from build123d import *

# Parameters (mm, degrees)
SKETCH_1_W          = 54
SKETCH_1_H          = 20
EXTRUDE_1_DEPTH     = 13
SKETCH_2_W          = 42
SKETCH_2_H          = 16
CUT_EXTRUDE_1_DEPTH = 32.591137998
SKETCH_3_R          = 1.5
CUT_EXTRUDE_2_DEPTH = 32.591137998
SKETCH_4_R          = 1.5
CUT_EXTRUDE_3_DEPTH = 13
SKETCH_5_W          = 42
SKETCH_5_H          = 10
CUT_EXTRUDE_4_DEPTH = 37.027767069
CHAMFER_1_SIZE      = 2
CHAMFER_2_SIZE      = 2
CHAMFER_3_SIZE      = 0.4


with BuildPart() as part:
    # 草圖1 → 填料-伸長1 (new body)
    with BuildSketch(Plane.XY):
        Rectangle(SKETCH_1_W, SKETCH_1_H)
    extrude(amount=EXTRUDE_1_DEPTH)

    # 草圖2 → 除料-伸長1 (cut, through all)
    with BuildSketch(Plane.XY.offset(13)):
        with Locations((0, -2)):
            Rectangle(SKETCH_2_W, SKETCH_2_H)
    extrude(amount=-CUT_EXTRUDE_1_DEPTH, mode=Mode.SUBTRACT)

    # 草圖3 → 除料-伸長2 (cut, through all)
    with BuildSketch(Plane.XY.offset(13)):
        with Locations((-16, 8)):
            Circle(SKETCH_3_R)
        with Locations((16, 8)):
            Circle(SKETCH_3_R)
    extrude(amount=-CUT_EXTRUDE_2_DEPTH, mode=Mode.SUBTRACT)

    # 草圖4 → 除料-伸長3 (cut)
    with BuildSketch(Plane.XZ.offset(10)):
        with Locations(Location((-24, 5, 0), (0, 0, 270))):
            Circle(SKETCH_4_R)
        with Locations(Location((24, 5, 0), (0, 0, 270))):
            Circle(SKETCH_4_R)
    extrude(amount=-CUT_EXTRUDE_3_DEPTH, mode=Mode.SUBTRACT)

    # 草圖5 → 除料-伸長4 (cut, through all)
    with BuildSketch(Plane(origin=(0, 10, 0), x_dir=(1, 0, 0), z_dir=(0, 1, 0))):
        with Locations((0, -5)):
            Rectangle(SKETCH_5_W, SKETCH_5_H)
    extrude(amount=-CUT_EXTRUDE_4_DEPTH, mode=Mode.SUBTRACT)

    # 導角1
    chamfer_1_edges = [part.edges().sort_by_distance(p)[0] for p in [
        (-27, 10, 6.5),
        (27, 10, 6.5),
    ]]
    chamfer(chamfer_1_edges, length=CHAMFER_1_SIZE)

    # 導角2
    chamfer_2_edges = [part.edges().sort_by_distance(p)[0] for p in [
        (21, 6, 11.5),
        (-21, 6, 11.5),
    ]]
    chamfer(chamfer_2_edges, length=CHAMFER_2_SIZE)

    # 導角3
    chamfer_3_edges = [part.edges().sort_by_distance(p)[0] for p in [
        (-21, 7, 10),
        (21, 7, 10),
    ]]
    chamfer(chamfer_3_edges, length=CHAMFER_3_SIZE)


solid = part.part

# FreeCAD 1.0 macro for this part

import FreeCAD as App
import Part
import Sketcher

V = App.Vector


def edges_at(feature, points):
    """Names of the edges that pass closest to the given points."""
    edges = feature.Shape.Edges
    near = lambda p: min(range(len(edges)), key=lambda i: edges[i].distToShape(Part.Vertex(*p))[0])
    return sorted({f"Edge{near(p) + 1}" for p in points})


def add_polygon(sketch, points):
    """Adds a closed chain of lines whose ends are joined by coincident constraints."""
    first, n = sketch.GeometryCount, len(points)
    for a, b in zip(points, points[1:] + points[:1]):
        sketch.addGeometry(Part.LineSegment(App.Vector(*a, 0), App.Vector(*b, 0)), False)
    for i in range(n):
        sketch.addConstraint(Sketcher.Constraint("Coincident", first + i, 2, first + (i + 1) % n, 1))

doc = App.newDocument("Part")
params = doc.addObject("Spreadsheet::Sheet", "Params")
for row, (alias, value) in enumerate([
    ("sketch1_width", "54 mm"),
    ("sketch1_height", "20 mm"),
    ("pad1_length", "13 mm"),
    ("sketch2_width", "42 mm"),
    ("sketch2_height", "16 mm"),
    ("sketch3_diameter", "3 mm"),
    ("sketch4_diameter", "3 mm"),
    ("pocket3_length", "13 mm"),
    ("sketch5_width", "42 mm"),
    ("sketch5_height", "10 mm"),
    ("chamfer_size", "2 mm"),
    ("chamfer2_size", "2 mm"),
    ("chamfer3_size", "0.4 mm"),
], start=1):
    params.set(f"A{row}", alias)
    params.set(f"B{row}", "=" + value)
    params.setAlias(f"B{row}", alias)

body = doc.addObject("PartDesign::Body", "Body")

# Sketch on XY plane
sketch1 = doc.addObject("Sketcher::SketchObject", "Sketch")
body.addObject(sketch1)
sketch1.AttachmentSupport = (doc.XY_Plane, [""])
sketch1.MapMode = "FlatFace"
add_polygon(sketch1, [(-27, 10), (-27, -10), (27, -10), (27, 10)])  # lines 0-3
sketch1.addConstraint([
    Sketcher.Constraint("Vertical", 0),
    Sketcher.Constraint("Horizontal", 1),
    Sketcher.Constraint("Vertical", 2),
    Sketcher.Constraint("Horizontal", 3),
    Sketcher.Constraint("Symmetric", 0, 2, 2, 2, -1, 1),
    Sketcher.Constraint("DistanceX", 1, 1, 1, 2, 54.0),
    Sketcher.Constraint("DistanceY", 0, 2, 0, 1, 20.0),
])
sketch1.setExpression("Constraints[9]", "Params.sketch1_width")
sketch1.setExpression("Constraints[10]", "Params.sketch1_height")
pad1 = doc.addObject("PartDesign::Pad", "Pad")
body.addObject(pad1)
pad1.Profile = sketch1
pad1.setExpression("Length", "Params.pad1_length")

# Sketch on XY plane
sketch2 = doc.addObject("Sketcher::SketchObject", "Sketch001")
body.addObject(sketch2)
sketch2.AttachmentSupport = (doc.XY_Plane, [""])
sketch2.MapMode = "FlatFace"
sketch2.AttachmentOffset = App.Placement(V(0, 0, 13), App.Rotation())
add_polygon(sketch2, [(-21, 6), (-21, -10), (21, -10), (21, 6)])  # lines 0-3
sketch2.addConstraint([
    Sketcher.Constraint("Vertical", 0),
    Sketcher.Constraint("Horizontal", 1),
    Sketcher.Constraint("Vertical", 2),
    Sketcher.Constraint("Horizontal", 3),
    Sketcher.Constraint("DistanceX", 1, 1, 1, 2, 42.0),
    Sketcher.Constraint("DistanceY", 0, 2, 0, 1, 16.0),
    Sketcher.Constraint("DistanceX", 0, 2, -1, 1, 21.0),
    Sketcher.Constraint("DistanceY", 0, 2, -1, 1, 10.0),
])
sketch2.setExpression("Constraints[8]", "Params.sketch2_width")
sketch2.setExpression("Constraints[9]", "Params.sketch2_height")
pocket1 = doc.addObject("PartDesign::Pocket", "Pocket")
body.addObject(pocket1)
pocket1.Profile = sketch2
pocket1.Type = "ThroughAll"

# Sketch on XY plane
sketch3 = doc.addObject("Sketcher::SketchObject", "Sketch002")
body.addObject(sketch3)
sketch3.AttachmentSupport = (doc.XY_Plane, [""])
sketch3.MapMode = "FlatFace"
sketch3.AttachmentOffset = App.Placement(V(0, 0, 13), App.Rotation())
sketch3.addGeometry([
    Part.Circle(V(-16, 8, 0), V(0, 0, 1), 1.5),
    Part.Circle(V(16, 8, 0), V(0, 0, 1), 1.5),
], False)
sketch3.addConstraint([
    Sketcher.Constraint("Equal", 0, 1),
    Sketcher.Constraint("Symmetric", 0, 3, 1, 3, -2),
    Sketcher.Constraint("Diameter", 0, 3.0),
    Sketcher.Constraint("DistanceX", 0, 3, -1, 1, 16.0),
    Sketcher.Constraint("DistanceY", -1, 1, 0, 3, 8.0),
])
sketch3.setExpression("Constraints[2]", "Params.sketch3_diameter")
pocket2 = doc.addObject("PartDesign::Pocket", "Pocket001")
body.addObject(pocket2)
pocket2.Profile = sketch3
pocket2.Type = "ThroughAll"

# Sketch on XZ plane
sketch4 = doc.addObject("Sketcher::SketchObject", "Sketch003")
body.addObject(sketch4)
sketch4.AttachmentSupport = (doc.XZ_Plane, [""])
sketch4.MapMode = "FlatFace"
sketch4.AttachmentOffset = App.Placement(V(0, 0, 10), App.Rotation())
sketch4.addGeometry([
    Part.Circle(V(-24, 5, 0), V(0, 0, 1), 1.5),
    Part.Circle(V(24, 5, 0), V(0, 0, 1), 1.5),
], False)
sketch4.addConstraint([
    Sketcher.Constraint("Equal", 0, 1),
    Sketcher.Constraint("Symmetric", 0, 3, 1, 3, -2),
    Sketcher.Constraint("Diameter", 0, 3.0),
    Sketcher.Constraint("DistanceX", 0, 3, -1, 1, 24.0),
    Sketcher.Constraint("DistanceY", -1, 1, 0, 3, 5.0),
])
sketch4.setExpression("Constraints[2]", "Params.sketch4_diameter")
pocket3 = doc.addObject("PartDesign::Pocket", "Pocket002")
body.addObject(pocket3)
pocket3.Profile = sketch4
pocket3.setExpression("Length", "Params.pocket3_length")

# Sketch on XZ plane
sketch5 = doc.addObject("Sketcher::SketchObject", "Sketch004")
body.addObject(sketch5)
sketch5.AttachmentSupport = (doc.XZ_Plane, [""])
sketch5.MapMode = "FlatFace"
sketch5.AttachmentOffset = App.Placement(V(0, 0, -10), App.Rotation())
add_polygon(sketch5, [(-21, 0), (-21, 10), (21, 10), (21, 0)])  # lines 0-3
sketch5.addConstraint([
    Sketcher.Constraint("Vertical", 0),
    Sketcher.Constraint("Horizontal", 1),
    Sketcher.Constraint("Vertical", 2),
    Sketcher.Constraint("Horizontal", 3),
    Sketcher.Constraint("Symmetric", 2, 2, 3, 2, -1, 1),
    Sketcher.Constraint("DistanceX", 1, 1, 1, 2, 42.0),
    Sketcher.Constraint("DistanceY", 0, 1, 0, 2, 10.0),
])
sketch5.setExpression("Constraints[9]", "Params.sketch5_width")
sketch5.setExpression("Constraints[10]", "Params.sketch5_height")
pocket4 = doc.addObject("PartDesign::Pocket", "Pocket003")
body.addObject(pocket4)
pocket4.Profile = sketch5
pocket4.Type = "ThroughAll"
pocket4.Reversed = True
doc.recompute()

chamfer = doc.addObject("PartDesign::Chamfer", "Chamfer")
body.addObject(chamfer)
chamfer.Base = (pocket4, edges_at(pocket4, [(-27, 10, 6.5), (27, 10, 6.5)]))
chamfer.setExpression("Size", "Params.chamfer_size")
doc.recompute()

chamfer2 = doc.addObject("PartDesign::Chamfer", "Chamfer001")
body.addObject(chamfer2)
chamfer2.Base = (chamfer, edges_at(chamfer, [(21, 6, 11.5), (-21, 6, 11.5)]))
chamfer2.setExpression("Size", "Params.chamfer2_size")
doc.recompute()

chamfer3 = doc.addObject("PartDesign::Chamfer", "Chamfer002")
body.addObject(chamfer3)
chamfer3.Base = (chamfer2, edges_at(chamfer2, [(-21, 7, 10), (21, 7, 10)]))
chamfer3.setExpression("Size", "Params.chamfer3_size")

doc.recompute()
